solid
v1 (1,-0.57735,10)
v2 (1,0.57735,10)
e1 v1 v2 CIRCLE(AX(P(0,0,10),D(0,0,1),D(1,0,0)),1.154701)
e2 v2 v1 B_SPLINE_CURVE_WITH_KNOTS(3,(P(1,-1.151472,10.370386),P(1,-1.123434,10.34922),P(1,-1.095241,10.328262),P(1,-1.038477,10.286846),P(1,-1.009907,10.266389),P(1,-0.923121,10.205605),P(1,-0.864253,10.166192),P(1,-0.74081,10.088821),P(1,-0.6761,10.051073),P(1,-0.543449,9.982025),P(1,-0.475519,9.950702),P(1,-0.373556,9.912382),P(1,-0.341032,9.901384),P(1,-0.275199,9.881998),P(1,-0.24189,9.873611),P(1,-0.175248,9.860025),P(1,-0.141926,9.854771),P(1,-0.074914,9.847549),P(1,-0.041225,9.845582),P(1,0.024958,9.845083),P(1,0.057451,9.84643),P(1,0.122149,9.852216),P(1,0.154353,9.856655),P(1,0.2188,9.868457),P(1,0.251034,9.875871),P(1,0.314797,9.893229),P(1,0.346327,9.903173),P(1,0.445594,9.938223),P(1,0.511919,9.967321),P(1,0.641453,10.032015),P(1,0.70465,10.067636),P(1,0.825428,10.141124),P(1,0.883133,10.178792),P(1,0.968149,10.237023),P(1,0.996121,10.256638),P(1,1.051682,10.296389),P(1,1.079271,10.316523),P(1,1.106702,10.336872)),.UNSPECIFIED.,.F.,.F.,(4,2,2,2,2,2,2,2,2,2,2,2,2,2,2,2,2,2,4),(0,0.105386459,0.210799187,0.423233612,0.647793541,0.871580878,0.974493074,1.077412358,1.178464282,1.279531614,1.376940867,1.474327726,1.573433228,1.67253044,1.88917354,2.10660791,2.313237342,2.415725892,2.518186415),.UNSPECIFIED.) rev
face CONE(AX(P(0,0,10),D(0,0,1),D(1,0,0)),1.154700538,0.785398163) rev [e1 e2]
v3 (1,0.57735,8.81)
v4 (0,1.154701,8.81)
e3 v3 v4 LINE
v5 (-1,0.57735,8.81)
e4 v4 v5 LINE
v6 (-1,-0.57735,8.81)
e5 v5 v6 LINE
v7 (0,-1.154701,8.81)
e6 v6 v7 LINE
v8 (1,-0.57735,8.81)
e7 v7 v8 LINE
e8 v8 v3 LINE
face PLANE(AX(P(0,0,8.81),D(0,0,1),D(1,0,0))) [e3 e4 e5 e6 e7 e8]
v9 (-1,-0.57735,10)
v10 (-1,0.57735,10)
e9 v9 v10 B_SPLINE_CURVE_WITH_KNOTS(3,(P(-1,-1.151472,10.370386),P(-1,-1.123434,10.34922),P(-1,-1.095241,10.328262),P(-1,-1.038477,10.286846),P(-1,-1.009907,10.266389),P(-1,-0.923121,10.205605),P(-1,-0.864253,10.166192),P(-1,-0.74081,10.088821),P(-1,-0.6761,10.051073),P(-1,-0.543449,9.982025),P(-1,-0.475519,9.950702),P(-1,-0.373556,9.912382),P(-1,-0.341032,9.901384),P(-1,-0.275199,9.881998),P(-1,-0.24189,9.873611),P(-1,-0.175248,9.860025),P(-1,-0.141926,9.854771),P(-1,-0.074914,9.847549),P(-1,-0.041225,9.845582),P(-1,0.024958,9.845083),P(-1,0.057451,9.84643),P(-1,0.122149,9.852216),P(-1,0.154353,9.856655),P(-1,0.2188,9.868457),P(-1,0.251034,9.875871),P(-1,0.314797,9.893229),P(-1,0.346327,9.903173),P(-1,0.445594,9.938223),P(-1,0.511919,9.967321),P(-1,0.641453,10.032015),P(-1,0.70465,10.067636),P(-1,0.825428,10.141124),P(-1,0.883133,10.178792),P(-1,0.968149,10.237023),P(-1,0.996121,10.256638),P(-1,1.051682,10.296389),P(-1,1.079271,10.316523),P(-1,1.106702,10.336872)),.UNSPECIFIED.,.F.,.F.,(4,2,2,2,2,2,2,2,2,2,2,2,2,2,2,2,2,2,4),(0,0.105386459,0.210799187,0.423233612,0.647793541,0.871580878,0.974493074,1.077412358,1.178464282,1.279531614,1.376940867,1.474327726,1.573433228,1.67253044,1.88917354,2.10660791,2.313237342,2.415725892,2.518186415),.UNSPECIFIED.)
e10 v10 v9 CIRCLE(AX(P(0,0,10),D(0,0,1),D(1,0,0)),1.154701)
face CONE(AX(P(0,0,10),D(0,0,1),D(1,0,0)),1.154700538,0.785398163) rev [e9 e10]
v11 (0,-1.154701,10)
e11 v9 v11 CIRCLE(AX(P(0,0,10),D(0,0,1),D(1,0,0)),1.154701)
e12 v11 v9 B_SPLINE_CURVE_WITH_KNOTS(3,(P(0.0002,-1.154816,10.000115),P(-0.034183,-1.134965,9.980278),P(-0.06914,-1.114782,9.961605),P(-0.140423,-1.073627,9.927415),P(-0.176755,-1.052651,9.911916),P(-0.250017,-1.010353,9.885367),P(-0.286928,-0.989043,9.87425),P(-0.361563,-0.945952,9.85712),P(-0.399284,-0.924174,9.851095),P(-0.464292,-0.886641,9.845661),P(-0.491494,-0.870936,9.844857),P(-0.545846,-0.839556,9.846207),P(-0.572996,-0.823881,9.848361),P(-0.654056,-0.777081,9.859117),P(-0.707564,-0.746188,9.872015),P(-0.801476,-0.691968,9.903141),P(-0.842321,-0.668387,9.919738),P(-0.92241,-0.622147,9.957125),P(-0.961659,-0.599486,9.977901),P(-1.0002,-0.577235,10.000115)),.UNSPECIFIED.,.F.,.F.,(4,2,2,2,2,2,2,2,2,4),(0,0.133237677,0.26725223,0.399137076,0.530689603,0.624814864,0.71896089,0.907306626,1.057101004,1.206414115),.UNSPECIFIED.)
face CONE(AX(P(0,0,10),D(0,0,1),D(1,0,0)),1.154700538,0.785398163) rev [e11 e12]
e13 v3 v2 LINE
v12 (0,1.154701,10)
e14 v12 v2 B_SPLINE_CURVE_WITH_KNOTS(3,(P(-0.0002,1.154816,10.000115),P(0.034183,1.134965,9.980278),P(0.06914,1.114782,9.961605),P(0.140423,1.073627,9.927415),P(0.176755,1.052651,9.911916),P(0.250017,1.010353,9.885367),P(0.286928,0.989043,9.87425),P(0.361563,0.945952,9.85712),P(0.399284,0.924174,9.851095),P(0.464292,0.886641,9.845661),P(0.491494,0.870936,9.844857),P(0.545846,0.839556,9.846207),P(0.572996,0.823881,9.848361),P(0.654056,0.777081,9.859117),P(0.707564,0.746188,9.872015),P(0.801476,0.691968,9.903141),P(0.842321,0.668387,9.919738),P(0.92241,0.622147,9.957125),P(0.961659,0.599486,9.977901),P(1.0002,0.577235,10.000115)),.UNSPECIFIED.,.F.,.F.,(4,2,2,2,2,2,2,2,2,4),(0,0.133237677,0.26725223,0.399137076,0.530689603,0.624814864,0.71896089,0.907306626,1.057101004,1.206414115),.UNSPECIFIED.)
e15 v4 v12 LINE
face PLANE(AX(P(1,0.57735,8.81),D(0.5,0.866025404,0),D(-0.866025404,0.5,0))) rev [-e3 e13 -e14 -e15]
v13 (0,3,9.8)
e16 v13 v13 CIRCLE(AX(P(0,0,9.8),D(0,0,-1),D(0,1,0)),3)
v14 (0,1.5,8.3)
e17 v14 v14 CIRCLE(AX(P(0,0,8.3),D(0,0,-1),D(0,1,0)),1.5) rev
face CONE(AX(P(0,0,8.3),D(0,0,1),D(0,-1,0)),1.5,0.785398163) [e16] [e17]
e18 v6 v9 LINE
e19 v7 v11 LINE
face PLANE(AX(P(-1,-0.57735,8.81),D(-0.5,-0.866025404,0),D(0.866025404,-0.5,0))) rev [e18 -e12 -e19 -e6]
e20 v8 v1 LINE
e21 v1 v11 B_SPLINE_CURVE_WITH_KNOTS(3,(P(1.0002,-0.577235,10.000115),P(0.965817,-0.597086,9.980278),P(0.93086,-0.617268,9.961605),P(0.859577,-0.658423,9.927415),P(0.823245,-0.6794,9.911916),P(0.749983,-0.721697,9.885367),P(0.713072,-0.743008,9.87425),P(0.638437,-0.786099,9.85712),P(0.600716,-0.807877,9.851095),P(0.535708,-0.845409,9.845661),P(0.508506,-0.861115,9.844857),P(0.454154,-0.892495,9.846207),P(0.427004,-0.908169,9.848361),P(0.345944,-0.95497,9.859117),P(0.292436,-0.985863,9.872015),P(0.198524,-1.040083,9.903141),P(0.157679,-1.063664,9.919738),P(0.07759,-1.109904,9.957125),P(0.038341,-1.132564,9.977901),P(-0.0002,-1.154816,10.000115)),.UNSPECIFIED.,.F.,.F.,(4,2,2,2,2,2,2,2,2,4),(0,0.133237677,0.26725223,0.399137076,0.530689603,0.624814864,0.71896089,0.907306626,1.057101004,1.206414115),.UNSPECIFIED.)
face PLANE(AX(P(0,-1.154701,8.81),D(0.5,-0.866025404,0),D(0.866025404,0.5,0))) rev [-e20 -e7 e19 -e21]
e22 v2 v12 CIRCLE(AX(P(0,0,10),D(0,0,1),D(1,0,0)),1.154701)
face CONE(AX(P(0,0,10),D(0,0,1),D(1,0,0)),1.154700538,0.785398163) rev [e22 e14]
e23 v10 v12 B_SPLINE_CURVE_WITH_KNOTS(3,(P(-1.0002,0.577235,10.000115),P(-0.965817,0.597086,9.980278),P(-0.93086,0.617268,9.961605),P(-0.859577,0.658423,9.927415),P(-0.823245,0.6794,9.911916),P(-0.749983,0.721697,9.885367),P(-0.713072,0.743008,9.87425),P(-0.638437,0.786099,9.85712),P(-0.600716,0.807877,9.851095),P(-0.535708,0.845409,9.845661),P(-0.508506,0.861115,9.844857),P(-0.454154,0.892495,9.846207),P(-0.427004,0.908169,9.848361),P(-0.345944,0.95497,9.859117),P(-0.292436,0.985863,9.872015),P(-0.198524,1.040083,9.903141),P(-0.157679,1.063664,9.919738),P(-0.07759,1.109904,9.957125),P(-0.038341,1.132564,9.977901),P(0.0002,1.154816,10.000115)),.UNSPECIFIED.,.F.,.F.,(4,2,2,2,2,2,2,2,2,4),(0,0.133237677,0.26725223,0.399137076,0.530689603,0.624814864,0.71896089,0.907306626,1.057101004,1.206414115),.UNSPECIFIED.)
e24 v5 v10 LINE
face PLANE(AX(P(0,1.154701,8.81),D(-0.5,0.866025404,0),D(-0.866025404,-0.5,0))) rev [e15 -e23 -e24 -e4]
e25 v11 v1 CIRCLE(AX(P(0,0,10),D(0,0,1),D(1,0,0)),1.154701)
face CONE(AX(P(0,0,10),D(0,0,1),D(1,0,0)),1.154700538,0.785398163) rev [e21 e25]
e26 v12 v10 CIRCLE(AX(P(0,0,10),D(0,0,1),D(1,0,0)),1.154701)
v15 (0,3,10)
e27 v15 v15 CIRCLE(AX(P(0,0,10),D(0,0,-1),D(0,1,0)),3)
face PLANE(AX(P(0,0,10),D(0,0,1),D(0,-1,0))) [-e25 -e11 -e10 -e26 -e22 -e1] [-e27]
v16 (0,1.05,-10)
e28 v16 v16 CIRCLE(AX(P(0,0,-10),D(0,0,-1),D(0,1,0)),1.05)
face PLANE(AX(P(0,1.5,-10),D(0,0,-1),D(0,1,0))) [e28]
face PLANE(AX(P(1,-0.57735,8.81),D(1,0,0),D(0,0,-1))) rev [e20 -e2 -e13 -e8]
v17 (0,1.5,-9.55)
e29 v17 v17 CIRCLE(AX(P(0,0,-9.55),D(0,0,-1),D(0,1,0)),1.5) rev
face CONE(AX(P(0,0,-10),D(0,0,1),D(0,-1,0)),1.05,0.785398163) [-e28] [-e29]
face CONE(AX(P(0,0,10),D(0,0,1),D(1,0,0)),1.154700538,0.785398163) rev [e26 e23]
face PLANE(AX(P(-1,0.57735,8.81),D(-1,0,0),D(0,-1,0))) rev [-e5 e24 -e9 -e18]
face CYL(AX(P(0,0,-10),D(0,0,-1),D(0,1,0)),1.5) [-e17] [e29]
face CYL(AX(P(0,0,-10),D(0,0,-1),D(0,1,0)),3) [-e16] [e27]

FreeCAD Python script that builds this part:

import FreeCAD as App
import Part
import Sketcher
from FreeCAD import Vector
Q = App.Units.Quantity


def edges_at(feature, points):
    """Names of the edges that pass closest to the given points."""
    edges = feature.Shape.Edges
    near = lambda p: min(range(len(edges)), key=lambda i: edges[i].distToShape(Part.Vertex(*p))[0])
    return sorted({f"Edge{near(p) + 1}" for p in points})

doc = App.newDocument("Part")
params = doc.addObject("Spreadsheet::Sheet", "Params")
for row, (alias, value) in enumerate([
    ("sketch1_height", "20 mm"),
    ("sketch1_width", "1.5 mm"),
    ("revolution_angle", "360 deg"),
    ("chamfer_size", "0.45 mm"),
    ("sketch2_width", "3 mm"),
    ("sketch2_width2", "1.5 mm"),
    ("sketch2_height", "0.2 mm"),
    ("revolution2_angle", "360 deg"),
    ("pocket1_length", "1.19 mm"),
    ("groove_angle", "360 deg"),
], start=1):
    params.set(f"A{row}", alias)
    params.set(f"B{row}", "=" + value)
    params.setAlias(f"B{row}", alias)

body = doc.addObject("PartDesign::Body", "Body")

# Sketch on YZ plane
sketch1 = body.newObject("Sketcher::SketchObject", "Sketch")
sketch1.AttachmentSupport = (doc.getObject("YZ_Plane"), [""])
sketch1.MapMode = "FlatFace"
sketch1.addGeometry([
    Part.LineSegment(Vector(1.5, 10, 0), Vector(0, 10, 0)),
    Part.LineSegment(Vector(0, 10, 0), Vector(0, -10, 0)),
    Part.LineSegment(Vector(0, -10, 0), Vector(1.5, -10, 0)),
    Part.LineSegment(Vector(1.5, -10, 0), Vector(1.5, 10, 0)),
], False)
sketch1.addConstraint([
    Sketcher.Constraint("Coincident", 0, 2, 1, 1),
    Sketcher.Constraint("Coincident", 1, 2, 2, 1),
    Sketcher.Constraint("Coincident", 2, 2, 3, 1),
    Sketcher.Constraint("Coincident", 3, 2, 0, 1),
    Sketcher.Constraint("Horizontal", 0),
    Sketcher.Constraint("Vertical", 1),
    Sketcher.Constraint("Horizontal", 2),
    Sketcher.Constraint("Vertical", 3),
    Sketcher.Constraint("Symmetric", 0, 2, 1, 2, -1, 1),
    Sketcher.Constraint("DistanceY", 1, 2, 1, 1, 20.0),
    Sketcher.Constraint("DistanceX", 0, 2, 0, 1, 1.5),
])
sketch1.setExpression("Constraints[9]", "Params.sketch1_height")
sketch1.setExpression("Constraints[10]", "Params.sketch1_width")
revolution = body.newObject("PartDesign::Revolution", "Revolution")
revolution.Profile = sketch1
revolution.ReferenceAxis = (sketch1, ["V_Axis"])
revolution.setExpression("Angle", "Params.revolution_angle")
doc.recompute()

chamfer = body.newObject("PartDesign::Chamfer", "Chamfer")
chamfer.Base = (revolution, edges_at(revolution, [(0, -1.5, -10)]))
chamfer.setExpression("Size", "Params.chamfer_size")

# Sketch on YZ plane
sketch2 = body.newObject("Sketcher::SketchObject", "Sketch001")
sketch2.AttachmentSupport = (doc.getObject("YZ_Plane"), [""])
sketch2.MapMode = "FlatFace"
sketch2.addGeometry([
    Part.LineSegment(Vector(3, 9.8, 0), Vector(3, 10, 0)),  # 0
    Part.LineSegment(Vector(3, 10, 0), Vector(0, 10, 0)),  # 1
    Part.LineSegment(Vector(0, 10, 0), Vector(0, 8.3, 0)),  # 2
    Part.LineSegment(Vector(0, 8.3, 0), Vector(1.5, 8.3, 0)),  # 3
    Part.LineSegment(Vector(1.5, 8.3, 0), Vector(3, 9.8, 0)),  # 4
], False)
sketch2.addConstraint([
    Sketcher.Constraint("Coincident", 0, 2, 1, 1),
    Sketcher.Constraint("Coincident", 1, 2, 2, 1),
    Sketcher.Constraint("Coincident", 2, 2, 3, 1),
    Sketcher.Constraint("Coincident", 3, 2, 4, 1),
    Sketcher.Constraint("Coincident", 4, 2, 0, 1),
    Sketcher.Constraint("Vertical", 0),
    Sketcher.Constraint("Horizontal", 1),
    Sketcher.Constraint("Vertical", 2),
    Sketcher.Constraint("Horizontal", 3),
    Sketcher.Constraint("PointOnObject", 1, 2, -2),
    Sketcher.Constraint("DistanceX", 1, 2, 1, 1, 3.0),
    Sketcher.Constraint("Angle", 4, Q("45 deg")),
    Sketcher.Constraint("DistanceX", 3, 1, 3, 2, 1.5),
    Sketcher.Constraint("DistanceY", 0, 1, 0, 2, 0.2),
    Sketcher.Constraint("DistanceY", -1, 1, 0, 2, 10.0),
])
sketch2.setExpression("Constraints[10]", "Params.sketch2_width")
sketch2.setExpression("Constraints[12]", "Params.sketch2_width2")
sketch2.setExpression("Constraints[13]", "Params.sketch2_height")
revolution2 = body.newObject("PartDesign::Revolution", "Revolution001")
revolution2.Profile = sketch2
revolution2.ReferenceAxis = (sketch2, ["V_Axis"])
revolution2.setExpression("Angle", "Params.revolution2_angle")

# Sketch on XY plane
sketch3 = body.newObject("Sketcher::SketchObject", "Sketch002")
sketch3.AttachmentSupport = (doc.getObject("XY_Plane"), [""])
sketch3.MapMode = "FlatFace"
sketch3.AttachmentOffset = App.Placement(Vector(0, 0, 10), App.Rotation())
sketch3.addGeometry([
    Part.LineSegment(Vector(0, 1.2, 0), Vector(-1, 0.6, 0)),  # 0
    Part.LineSegment(Vector(-1, 0.6, 0), Vector(-1, -0.6, 0)),  # 1
    Part.LineSegment(Vector(-1, -0.6, 0), Vector(0, -1.2, 0)),  # 2
    Part.LineSegment(Vector(0, -1.2, 0), Vector(1, -0.6, 0)),  # 3
    Part.LineSegment(Vector(1, -0.6, 0), Vector(1, 0.6, 0)),  # 4
    Part.LineSegment(Vector(1, 0.6, 0), Vector(0, 1.2, 0)),  # 5
], False)
sketch3.addConstraint([
    Sketcher.Constraint("Coincident", 0, 2, 1, 1),
    Sketcher.Constraint("Coincident", 1, 2, 2, 1),
    Sketcher.Constraint("Coincident", 2, 2, 3, 1),
    Sketcher.Constraint("Coincident", 3, 2, 4, 1),
    Sketcher.Constraint("Coincident", 4, 2, 5, 1),
    Sketcher.Constraint("Coincident", 5, 2, 0, 1),
    Sketcher.Constraint("Vertical", 1),
    Sketcher.Constraint("Vertical", 4),
    Sketcher.Constraint("Symmetric", 0, 2, 3, 2, -1, 1),
    Sketcher.Constraint("Symmetric", 2, 2, 5, 2, -1, 1),
    Sketcher.Constraint("PointOnObject", 2, 2, -2),
    Sketcher.Constraint("Parallel", 2, 5),
    Sketcher.Constraint("Horizontal", 1, 2, 3, 2),
    Sketcher.Constraint("Angle", 0, Q("-150 deg")),
    Sketcher.Constraint("DistanceX", 0, 2, -1, 1, 1.0),
    Sketcher.Constraint("DistanceY", 1, 2, 1, 1, 1.154701),
])
pocket1 = body.newObject("PartDesign::Pocket", "Pocket")
pocket1.Profile = sketch3
pocket1.setExpression("Length", "Params.pocket1_length")

# Sketch on YZ plane
sketch4 = body.newObject("Sketcher::SketchObject", "Sketch003")
sketch4.AttachmentSupport = (doc.getObject("YZ_Plane"), [""])
sketch4.MapMode = "FlatFace"
sketch4.addGeometry([
    Part.LineSegment(Vector(0, 10, 0), Vector(-1.2, 10, 0)),
    Part.LineSegment(Vector(-1.2, 10, 0), Vector(0, 8.8, 0)),
    Part.LineSegment(Vector(0, 8.8, 0), Vector(0, 10, 0)),
], False)
sketch4.addConstraint([
    Sketcher.Constraint("Coincident", 0, 2, 1, 1),
    Sketcher.Constraint("Coincident", 1, 2, 2, 1),
    Sketcher.Constraint("Coincident", 2, 2, 0, 1),
    Sketcher.Constraint("Horizontal", 0),
    Sketcher.Constraint("Vertical", 2),
    Sketcher.Constraint("PointOnObject", 1, 2, -2),
    Sketcher.Constraint("Equal", 0, 2),
    Sketcher.Constraint("DistanceY", -1, 1, 0, 2, 10.0),
    Sketcher.Constraint("DistanceX", 0, 2, 0, 1, 1.154701),
])
groove = body.newObject("PartDesign::Groove", "Groove")
groove.Profile = sketch4
groove.ReferenceAxis = (sketch4, ["V_Axis"])
groove.setExpression("Angle", "Params.groove_angle")

doc.recompute()
